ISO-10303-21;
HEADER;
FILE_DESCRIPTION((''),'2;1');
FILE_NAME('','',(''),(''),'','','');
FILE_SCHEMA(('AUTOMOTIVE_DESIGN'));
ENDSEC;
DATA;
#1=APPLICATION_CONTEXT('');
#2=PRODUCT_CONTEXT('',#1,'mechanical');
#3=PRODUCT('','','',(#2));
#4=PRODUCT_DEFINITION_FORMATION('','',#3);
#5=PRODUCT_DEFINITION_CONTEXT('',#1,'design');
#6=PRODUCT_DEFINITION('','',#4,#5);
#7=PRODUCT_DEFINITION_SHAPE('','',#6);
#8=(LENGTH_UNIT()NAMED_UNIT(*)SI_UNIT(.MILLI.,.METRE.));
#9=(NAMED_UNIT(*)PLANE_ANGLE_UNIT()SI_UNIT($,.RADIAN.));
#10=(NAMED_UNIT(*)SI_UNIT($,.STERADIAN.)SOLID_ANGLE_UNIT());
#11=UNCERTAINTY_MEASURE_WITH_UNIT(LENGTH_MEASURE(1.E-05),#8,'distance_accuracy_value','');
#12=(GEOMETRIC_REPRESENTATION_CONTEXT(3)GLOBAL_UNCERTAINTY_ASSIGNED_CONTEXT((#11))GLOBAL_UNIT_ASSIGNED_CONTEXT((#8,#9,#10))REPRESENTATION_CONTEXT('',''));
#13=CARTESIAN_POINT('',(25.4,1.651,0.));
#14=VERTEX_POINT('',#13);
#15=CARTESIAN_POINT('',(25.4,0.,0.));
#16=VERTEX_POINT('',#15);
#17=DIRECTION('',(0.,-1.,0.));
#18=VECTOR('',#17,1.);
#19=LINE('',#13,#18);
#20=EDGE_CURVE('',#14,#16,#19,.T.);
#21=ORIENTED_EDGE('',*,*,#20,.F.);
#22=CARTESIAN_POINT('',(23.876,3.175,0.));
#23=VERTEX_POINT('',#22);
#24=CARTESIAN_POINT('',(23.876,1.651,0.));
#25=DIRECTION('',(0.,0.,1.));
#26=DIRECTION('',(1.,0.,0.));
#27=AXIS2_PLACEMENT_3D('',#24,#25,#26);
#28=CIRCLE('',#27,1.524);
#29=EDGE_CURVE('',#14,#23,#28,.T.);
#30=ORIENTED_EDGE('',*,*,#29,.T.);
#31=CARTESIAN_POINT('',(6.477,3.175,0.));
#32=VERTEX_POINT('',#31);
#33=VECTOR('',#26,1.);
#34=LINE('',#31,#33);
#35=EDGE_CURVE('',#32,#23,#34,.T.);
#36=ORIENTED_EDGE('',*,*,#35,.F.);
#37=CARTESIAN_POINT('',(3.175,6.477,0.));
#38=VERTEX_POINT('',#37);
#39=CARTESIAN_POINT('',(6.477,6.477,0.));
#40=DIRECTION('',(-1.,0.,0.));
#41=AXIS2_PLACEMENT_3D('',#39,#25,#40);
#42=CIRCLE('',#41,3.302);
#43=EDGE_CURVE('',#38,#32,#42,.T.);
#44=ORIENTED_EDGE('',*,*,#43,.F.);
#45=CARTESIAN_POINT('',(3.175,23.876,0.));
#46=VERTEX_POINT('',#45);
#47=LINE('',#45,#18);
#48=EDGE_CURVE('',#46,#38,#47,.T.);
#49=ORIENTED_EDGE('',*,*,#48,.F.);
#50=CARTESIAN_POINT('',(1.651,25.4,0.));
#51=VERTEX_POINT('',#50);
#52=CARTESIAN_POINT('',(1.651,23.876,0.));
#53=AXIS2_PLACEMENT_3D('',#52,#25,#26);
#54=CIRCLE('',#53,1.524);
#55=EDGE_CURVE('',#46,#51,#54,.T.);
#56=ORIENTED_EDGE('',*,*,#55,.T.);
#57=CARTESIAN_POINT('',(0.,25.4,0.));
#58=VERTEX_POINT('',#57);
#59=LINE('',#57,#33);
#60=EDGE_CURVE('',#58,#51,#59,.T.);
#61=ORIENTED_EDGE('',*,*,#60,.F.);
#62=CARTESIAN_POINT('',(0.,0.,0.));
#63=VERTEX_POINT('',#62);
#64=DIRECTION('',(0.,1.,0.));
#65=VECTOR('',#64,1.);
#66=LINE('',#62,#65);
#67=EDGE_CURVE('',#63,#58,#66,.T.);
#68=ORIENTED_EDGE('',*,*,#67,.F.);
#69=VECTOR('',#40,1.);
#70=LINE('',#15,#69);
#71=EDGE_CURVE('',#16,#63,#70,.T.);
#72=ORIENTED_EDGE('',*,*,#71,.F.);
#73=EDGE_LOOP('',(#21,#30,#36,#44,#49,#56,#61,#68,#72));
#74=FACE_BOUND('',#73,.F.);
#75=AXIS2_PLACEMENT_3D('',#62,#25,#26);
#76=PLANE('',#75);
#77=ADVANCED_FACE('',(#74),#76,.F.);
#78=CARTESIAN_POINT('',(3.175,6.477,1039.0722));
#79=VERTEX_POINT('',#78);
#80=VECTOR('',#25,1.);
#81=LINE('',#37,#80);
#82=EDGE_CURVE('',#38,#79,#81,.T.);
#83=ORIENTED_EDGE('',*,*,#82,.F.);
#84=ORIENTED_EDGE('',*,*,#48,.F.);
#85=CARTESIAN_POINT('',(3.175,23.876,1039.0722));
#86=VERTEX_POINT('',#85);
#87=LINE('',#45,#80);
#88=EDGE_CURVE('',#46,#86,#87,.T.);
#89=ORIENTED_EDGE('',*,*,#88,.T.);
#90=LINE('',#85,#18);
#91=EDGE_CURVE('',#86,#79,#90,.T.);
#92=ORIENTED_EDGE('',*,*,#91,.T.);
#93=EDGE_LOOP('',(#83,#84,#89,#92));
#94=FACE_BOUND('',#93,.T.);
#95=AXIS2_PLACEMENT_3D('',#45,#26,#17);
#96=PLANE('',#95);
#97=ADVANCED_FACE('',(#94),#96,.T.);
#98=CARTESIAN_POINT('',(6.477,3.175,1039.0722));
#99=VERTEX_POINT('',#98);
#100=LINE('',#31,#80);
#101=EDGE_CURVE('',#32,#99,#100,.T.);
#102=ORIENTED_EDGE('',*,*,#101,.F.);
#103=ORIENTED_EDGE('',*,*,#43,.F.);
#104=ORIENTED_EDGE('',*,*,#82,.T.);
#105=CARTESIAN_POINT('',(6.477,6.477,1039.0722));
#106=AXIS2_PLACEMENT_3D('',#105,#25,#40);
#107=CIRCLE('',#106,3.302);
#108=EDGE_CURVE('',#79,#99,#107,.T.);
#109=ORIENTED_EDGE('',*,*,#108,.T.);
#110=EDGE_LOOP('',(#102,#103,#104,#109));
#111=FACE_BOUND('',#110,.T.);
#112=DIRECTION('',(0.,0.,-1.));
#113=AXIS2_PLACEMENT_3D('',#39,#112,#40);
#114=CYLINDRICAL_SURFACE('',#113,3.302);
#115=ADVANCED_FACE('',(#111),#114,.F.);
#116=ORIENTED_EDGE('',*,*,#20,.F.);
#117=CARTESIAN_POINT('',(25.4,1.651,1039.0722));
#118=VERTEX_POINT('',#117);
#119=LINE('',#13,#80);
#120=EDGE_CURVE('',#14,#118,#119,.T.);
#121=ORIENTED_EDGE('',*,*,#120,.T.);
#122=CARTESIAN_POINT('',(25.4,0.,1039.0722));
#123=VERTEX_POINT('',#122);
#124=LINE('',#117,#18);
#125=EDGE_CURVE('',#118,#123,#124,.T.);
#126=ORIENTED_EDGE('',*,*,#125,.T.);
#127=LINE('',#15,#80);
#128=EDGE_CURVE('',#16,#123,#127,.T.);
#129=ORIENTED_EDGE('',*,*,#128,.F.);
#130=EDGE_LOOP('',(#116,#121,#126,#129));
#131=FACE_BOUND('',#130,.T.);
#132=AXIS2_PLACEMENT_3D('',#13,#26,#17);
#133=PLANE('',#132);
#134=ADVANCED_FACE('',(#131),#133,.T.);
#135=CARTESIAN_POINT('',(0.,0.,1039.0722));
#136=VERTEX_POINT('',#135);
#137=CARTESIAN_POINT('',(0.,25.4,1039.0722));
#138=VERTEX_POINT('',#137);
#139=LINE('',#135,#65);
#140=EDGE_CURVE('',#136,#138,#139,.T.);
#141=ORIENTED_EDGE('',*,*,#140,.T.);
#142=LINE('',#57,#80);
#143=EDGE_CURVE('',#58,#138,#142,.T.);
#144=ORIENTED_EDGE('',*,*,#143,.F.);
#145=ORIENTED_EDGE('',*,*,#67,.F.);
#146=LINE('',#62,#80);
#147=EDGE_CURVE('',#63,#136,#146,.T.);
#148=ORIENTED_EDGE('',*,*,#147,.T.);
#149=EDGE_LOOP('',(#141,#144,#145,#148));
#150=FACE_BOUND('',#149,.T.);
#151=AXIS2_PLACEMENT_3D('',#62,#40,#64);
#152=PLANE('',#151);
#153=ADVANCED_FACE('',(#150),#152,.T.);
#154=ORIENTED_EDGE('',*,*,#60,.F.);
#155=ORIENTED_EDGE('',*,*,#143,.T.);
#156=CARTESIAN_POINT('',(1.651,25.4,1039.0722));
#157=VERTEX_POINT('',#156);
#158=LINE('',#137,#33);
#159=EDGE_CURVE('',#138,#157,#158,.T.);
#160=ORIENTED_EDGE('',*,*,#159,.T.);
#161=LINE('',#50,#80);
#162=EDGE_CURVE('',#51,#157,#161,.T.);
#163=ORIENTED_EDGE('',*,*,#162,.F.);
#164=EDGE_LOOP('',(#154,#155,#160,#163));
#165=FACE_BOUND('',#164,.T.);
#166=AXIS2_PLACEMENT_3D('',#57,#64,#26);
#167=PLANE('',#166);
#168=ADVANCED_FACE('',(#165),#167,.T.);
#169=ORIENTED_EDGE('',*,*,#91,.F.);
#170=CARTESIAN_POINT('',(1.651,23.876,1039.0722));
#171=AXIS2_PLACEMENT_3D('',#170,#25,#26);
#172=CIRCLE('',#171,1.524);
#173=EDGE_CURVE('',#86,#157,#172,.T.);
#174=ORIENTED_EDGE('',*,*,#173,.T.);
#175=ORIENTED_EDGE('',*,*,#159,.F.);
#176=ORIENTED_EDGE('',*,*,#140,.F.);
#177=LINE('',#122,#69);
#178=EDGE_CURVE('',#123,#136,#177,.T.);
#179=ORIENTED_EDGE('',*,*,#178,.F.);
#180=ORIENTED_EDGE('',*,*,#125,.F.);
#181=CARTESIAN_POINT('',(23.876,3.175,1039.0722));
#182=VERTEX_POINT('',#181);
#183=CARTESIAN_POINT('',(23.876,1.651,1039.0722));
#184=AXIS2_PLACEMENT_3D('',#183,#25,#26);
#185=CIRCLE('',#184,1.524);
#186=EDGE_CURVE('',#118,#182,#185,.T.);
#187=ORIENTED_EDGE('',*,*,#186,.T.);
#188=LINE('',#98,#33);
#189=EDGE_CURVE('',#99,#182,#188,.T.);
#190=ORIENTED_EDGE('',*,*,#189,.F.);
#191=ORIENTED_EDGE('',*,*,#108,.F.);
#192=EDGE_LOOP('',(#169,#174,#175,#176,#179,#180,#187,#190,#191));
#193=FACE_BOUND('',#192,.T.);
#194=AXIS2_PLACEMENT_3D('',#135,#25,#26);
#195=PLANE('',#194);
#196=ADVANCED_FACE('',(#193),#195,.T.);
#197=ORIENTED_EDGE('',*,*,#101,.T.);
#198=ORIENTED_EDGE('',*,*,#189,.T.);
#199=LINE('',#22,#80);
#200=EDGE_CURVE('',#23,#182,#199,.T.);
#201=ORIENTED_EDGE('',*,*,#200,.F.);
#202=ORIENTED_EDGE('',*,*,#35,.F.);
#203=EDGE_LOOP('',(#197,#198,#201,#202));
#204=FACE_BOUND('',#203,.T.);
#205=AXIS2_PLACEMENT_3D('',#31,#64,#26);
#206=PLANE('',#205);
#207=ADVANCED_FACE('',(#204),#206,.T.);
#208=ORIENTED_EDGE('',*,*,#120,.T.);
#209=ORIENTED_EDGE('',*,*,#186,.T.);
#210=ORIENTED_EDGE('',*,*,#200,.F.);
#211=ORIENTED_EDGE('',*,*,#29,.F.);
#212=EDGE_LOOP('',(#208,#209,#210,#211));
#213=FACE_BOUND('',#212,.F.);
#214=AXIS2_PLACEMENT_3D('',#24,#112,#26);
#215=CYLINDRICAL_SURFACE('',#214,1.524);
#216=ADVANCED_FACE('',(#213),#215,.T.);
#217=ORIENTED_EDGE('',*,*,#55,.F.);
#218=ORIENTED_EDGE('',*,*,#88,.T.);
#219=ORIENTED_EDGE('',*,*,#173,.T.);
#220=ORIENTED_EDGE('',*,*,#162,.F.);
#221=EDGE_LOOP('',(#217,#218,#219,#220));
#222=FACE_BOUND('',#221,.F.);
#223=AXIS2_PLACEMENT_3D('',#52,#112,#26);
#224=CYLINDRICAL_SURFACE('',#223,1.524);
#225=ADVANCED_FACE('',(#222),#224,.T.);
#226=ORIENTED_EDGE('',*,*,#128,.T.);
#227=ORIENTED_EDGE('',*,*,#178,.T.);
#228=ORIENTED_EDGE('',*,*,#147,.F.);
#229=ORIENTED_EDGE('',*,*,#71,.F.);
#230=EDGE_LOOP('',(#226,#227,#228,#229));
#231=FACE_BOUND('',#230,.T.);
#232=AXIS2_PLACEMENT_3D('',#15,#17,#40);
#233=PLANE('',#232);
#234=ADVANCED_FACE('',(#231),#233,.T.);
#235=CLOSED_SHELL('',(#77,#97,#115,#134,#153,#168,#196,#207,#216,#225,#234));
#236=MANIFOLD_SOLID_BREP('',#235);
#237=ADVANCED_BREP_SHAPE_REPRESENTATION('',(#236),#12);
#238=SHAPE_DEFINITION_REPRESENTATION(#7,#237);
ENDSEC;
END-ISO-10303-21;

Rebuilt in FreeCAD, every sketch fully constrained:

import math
import FreeCAD as App
import Part
import Sketcher

V = App.Vector
Q = App.Units.Quantity

doc = App.newDocument("Part")
body = doc.addObject("PartDesign::Body", "Body")

# Sketch on XY plane
sketch1 = doc.addObject("Sketcher::SketchObject", "Sketch")
body.addObject(sketch1)
sketch1.AttachmentSupport = (doc.XY_Plane, [""])
sketch1.MapMode = "FlatFace"
sketch1.addGeometry([
    Part.LineSegment(V(0, 0, 0), V(25.4, 0, 0)),  # 0
    Part.LineSegment(V(25.4, 0, 0), V(25.4, 1.7, 0)),  # 1
    Part.ArcOfCircle(Part.Circle(V(23.9, 1.7, 0), V(0, 0, 1), 1.5), math.radians(0), math.radians(90)),  # 2
    Part.LineSegment(V(23.9, 3.2, 0), V(6.5, 3.2, 0)),  # 3
    Part.ArcOfCircle(Part.Circle(V(6.5, 6.5, 0), V(0, 0, 1), 3.3), math.radians(180), math.radians(270)),  # 4
    Part.LineSegment(V(3.2, 6.5, 0), V(3.2, 23.9, 0)),  # 5
    Part.ArcOfCircle(Part.Circle(V(1.7, 23.9, 0), V(0, 0, 1), 1.5), math.radians(0), math.radians(90)),  # 6
    Part.LineSegment(V(1.7, 25.4, 0), V(0, 25.4, 0)),  # 7
    Part.LineSegment(V(0, 25.4, 0), V(0, 0, 0)),  # 8
], False)
sketch1.addConstraint([
    Sketcher.Constraint("Coincident", 0, 2, 1, 1),
    Sketcher.Constraint("Tangent", 1, 2, 2, 1),
    Sketcher.Constraint("Tangent", 2, 2, 3, 1),
    Sketcher.Constraint("Tangent", 3, 2, 4, 2),
    Sketcher.Constraint("Tangent", 4, 1, 5, 1),
    Sketcher.Constraint("Tangent", 5, 2, 6, 1),
    Sketcher.Constraint("Tangent", 6, 2, 7, 1),
    Sketcher.Constraint("Coincident", 7, 2, 8, 1),
    Sketcher.Constraint("Coincident", 8, 2, 0, 1),
    Sketcher.Constraint("Horizontal", 0),
    Sketcher.Constraint("Vertical", 1),
    Sketcher.Constraint("Horizontal", 3),
    Sketcher.Constraint("Vertical", 5),
    Sketcher.Constraint("Horizontal", 7),
    Sketcher.Constraint("Vertical", 8),
    Sketcher.Constraint("Coincident", 8, 2, -1, 1),
    Sketcher.Constraint("Equal", 2, 6),
    Sketcher.Constraint("Equal", 7, 1),
    Sketcher.Constraint("Equal", 3, 5),
    Sketcher.Constraint("DistanceX", 0, 1, 0, 2, Q("1 in")),
    Sketcher.Constraint("Radius", 2, Q("0.06 in")),
    Sketcher.Constraint("Radius", 4, Q("0.13 in")),
    Sketcher.Constraint("DistanceY", -1, 1, 2, 2, Q("0.125 in")),
])
pad1 = doc.addObject("PartDesign::Pad", "Pad")
body.addObject(pad1)
pad1.Profile = sketch1
pad1.Length = 1039.0722

doc.recompute()
